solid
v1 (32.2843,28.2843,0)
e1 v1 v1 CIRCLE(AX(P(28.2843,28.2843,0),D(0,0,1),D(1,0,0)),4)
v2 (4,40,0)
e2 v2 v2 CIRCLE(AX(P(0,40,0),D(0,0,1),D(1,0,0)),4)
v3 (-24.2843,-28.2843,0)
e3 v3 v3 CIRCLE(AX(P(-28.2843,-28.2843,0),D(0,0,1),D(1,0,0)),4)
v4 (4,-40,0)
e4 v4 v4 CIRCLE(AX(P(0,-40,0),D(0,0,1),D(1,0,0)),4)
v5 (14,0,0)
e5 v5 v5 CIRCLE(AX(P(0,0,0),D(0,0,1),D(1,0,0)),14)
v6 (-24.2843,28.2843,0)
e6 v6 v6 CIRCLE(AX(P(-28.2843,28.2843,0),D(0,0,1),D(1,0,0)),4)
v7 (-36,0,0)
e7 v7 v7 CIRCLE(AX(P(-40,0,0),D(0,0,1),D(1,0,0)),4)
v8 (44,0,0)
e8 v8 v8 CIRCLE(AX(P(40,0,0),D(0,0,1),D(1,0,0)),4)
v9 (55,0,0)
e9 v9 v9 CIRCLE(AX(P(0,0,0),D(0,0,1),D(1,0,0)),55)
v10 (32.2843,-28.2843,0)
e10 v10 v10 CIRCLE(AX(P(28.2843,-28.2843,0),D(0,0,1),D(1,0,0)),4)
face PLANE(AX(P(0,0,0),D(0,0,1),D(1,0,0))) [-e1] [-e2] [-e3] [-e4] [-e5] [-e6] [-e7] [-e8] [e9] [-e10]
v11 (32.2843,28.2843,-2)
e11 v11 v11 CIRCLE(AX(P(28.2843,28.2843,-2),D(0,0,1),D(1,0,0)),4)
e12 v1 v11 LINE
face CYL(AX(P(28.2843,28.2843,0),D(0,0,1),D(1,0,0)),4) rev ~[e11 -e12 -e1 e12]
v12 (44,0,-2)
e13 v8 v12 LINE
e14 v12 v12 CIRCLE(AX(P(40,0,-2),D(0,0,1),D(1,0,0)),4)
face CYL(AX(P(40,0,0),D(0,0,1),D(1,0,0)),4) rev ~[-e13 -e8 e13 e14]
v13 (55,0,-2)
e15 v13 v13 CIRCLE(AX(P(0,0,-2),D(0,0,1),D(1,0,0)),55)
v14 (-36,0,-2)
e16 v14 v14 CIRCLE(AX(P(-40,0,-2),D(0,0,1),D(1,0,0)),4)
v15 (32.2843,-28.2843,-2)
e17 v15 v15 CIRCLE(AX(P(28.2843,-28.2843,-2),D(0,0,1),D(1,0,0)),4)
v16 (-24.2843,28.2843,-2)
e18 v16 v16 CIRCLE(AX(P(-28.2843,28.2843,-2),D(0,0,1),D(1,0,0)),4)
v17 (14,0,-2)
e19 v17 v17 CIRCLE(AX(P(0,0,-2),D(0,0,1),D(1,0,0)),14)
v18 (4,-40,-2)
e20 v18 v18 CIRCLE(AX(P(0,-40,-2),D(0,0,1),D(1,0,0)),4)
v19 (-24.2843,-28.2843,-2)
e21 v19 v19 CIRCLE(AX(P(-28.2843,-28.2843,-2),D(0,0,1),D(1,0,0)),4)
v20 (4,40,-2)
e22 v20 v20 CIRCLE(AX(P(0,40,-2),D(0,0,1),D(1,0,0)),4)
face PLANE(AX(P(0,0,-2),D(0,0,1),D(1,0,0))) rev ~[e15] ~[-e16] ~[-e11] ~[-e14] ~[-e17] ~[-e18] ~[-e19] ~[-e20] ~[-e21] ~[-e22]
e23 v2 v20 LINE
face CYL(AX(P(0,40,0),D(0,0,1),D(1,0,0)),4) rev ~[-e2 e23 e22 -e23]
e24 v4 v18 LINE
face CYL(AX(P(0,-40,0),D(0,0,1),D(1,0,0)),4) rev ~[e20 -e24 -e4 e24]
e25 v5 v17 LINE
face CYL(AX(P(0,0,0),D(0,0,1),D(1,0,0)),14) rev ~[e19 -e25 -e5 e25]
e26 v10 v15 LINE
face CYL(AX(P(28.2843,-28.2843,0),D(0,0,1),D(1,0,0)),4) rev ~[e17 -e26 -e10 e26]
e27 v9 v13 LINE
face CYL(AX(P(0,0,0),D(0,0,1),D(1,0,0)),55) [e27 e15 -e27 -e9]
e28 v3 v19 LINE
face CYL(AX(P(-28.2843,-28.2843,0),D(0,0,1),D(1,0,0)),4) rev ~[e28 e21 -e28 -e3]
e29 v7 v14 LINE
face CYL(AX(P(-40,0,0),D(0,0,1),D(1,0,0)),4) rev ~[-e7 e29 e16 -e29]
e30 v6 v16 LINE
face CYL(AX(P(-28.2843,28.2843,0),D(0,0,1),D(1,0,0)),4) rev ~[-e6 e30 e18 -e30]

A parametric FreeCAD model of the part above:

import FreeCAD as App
import Part
import Sketcher

V = App.Vector

doc = App.newDocument("Part")
body = doc.addObject("PartDesign::Body", "Body")

sketch1 = body.newObject("Sketcher::SketchObject", "Sketch")
sketch1.AttachmentSupport = (doc.getObject("XY_Plane"), [""])
sketch1.MapMode = "FlatFace"
sketch1.addGeometry([
    Part.Circle(V(0, 0, 0), V(0, 0, 1), 55),
    Part.Circle(V(-28.3, -28.3, 0), V(0, 0, 1), 4),
    Part.Circle(V(0, -40, 0), V(0, 0, 1), 4),
    Part.Circle(V(28.3, -28.3, 0), V(0, 0, 1), 4),
    Part.Circle(V(-40, 0, 0), V(0, 0, 1), 4),
    Part.Circle(V(-28.3, 28.3, 0), V(0, 0, 1), 4),
    Part.Circle(V(0, 0, 0), V(0, 0, 1), 14),
    Part.Circle(V(40, 0, 0), V(0, 0, 1), 4),
    Part.Circle(V(0, 40, 0), V(0, 0, 1), 4),
    Part.Circle(V(28.3, 28.3, 0), V(0, 0, 1), 4),
], False)
sketch1.addConstraint([
    Sketcher.Constraint("Coincident", 0, 3, -1, 1),
    Sketcher.Constraint("Coincident", 6, 3, -1, 1),
    Sketcher.Constraint("Equal", 1, 2),
    Sketcher.Constraint("Equal", 2, 3),
    Sketcher.Constraint("Equal", 3, 4),
    Sketcher.Constraint("Equal", 4, 5),
    Sketcher.Constraint("Equal", 5, 7),
    Sketcher.Constraint("Equal", 7, 8),
    Sketcher.Constraint("Equal", 8, 9),
    Sketcher.Constraint("Symmetric", 3, 3, 5, 3, -1, 1),
    Sketcher.Constraint("Symmetric", 4, 3, 7, 3, -1, 1),
    Sketcher.Constraint("Symmetric", 2, 3, 8, 3, -1, 1),
    Sketcher.Constraint("Symmetric", 1, 3, 9, 3, -1, 1),
    Sketcher.Constraint("Symmetric", 1, 3, 3, 3, -2),
    Sketcher.Constraint("PointOnObject", 2, 3, -2),
    Sketcher.Constraint("PointOnObject", 4, 3, -1),
    Sketcher.Constraint("Diameter", 0, 110.0),
    Sketcher.Constraint("Diameter", 1, 8.0),
    Sketcher.Constraint("Diameter", 6, 28.0),
    Sketcher.Constraint("DistanceY", 2, 3, -1, 1, 40.0),
    Sketcher.Constraint("DistanceX", 4, 3, -1, 1, 40.0),
    Sketcher.Constraint("DistanceX", 1, 3, -1, 1, 28.2843),
    Sketcher.Constraint("DistanceY", 1, 3, -1, 1, 28.2843),
])
pad1 = body.newObject("PartDesign::Pad", "Pad")
pad1.Profile = sketch1
pad1.Length = 2
pad1.Reversed = True

doc.recompute()
